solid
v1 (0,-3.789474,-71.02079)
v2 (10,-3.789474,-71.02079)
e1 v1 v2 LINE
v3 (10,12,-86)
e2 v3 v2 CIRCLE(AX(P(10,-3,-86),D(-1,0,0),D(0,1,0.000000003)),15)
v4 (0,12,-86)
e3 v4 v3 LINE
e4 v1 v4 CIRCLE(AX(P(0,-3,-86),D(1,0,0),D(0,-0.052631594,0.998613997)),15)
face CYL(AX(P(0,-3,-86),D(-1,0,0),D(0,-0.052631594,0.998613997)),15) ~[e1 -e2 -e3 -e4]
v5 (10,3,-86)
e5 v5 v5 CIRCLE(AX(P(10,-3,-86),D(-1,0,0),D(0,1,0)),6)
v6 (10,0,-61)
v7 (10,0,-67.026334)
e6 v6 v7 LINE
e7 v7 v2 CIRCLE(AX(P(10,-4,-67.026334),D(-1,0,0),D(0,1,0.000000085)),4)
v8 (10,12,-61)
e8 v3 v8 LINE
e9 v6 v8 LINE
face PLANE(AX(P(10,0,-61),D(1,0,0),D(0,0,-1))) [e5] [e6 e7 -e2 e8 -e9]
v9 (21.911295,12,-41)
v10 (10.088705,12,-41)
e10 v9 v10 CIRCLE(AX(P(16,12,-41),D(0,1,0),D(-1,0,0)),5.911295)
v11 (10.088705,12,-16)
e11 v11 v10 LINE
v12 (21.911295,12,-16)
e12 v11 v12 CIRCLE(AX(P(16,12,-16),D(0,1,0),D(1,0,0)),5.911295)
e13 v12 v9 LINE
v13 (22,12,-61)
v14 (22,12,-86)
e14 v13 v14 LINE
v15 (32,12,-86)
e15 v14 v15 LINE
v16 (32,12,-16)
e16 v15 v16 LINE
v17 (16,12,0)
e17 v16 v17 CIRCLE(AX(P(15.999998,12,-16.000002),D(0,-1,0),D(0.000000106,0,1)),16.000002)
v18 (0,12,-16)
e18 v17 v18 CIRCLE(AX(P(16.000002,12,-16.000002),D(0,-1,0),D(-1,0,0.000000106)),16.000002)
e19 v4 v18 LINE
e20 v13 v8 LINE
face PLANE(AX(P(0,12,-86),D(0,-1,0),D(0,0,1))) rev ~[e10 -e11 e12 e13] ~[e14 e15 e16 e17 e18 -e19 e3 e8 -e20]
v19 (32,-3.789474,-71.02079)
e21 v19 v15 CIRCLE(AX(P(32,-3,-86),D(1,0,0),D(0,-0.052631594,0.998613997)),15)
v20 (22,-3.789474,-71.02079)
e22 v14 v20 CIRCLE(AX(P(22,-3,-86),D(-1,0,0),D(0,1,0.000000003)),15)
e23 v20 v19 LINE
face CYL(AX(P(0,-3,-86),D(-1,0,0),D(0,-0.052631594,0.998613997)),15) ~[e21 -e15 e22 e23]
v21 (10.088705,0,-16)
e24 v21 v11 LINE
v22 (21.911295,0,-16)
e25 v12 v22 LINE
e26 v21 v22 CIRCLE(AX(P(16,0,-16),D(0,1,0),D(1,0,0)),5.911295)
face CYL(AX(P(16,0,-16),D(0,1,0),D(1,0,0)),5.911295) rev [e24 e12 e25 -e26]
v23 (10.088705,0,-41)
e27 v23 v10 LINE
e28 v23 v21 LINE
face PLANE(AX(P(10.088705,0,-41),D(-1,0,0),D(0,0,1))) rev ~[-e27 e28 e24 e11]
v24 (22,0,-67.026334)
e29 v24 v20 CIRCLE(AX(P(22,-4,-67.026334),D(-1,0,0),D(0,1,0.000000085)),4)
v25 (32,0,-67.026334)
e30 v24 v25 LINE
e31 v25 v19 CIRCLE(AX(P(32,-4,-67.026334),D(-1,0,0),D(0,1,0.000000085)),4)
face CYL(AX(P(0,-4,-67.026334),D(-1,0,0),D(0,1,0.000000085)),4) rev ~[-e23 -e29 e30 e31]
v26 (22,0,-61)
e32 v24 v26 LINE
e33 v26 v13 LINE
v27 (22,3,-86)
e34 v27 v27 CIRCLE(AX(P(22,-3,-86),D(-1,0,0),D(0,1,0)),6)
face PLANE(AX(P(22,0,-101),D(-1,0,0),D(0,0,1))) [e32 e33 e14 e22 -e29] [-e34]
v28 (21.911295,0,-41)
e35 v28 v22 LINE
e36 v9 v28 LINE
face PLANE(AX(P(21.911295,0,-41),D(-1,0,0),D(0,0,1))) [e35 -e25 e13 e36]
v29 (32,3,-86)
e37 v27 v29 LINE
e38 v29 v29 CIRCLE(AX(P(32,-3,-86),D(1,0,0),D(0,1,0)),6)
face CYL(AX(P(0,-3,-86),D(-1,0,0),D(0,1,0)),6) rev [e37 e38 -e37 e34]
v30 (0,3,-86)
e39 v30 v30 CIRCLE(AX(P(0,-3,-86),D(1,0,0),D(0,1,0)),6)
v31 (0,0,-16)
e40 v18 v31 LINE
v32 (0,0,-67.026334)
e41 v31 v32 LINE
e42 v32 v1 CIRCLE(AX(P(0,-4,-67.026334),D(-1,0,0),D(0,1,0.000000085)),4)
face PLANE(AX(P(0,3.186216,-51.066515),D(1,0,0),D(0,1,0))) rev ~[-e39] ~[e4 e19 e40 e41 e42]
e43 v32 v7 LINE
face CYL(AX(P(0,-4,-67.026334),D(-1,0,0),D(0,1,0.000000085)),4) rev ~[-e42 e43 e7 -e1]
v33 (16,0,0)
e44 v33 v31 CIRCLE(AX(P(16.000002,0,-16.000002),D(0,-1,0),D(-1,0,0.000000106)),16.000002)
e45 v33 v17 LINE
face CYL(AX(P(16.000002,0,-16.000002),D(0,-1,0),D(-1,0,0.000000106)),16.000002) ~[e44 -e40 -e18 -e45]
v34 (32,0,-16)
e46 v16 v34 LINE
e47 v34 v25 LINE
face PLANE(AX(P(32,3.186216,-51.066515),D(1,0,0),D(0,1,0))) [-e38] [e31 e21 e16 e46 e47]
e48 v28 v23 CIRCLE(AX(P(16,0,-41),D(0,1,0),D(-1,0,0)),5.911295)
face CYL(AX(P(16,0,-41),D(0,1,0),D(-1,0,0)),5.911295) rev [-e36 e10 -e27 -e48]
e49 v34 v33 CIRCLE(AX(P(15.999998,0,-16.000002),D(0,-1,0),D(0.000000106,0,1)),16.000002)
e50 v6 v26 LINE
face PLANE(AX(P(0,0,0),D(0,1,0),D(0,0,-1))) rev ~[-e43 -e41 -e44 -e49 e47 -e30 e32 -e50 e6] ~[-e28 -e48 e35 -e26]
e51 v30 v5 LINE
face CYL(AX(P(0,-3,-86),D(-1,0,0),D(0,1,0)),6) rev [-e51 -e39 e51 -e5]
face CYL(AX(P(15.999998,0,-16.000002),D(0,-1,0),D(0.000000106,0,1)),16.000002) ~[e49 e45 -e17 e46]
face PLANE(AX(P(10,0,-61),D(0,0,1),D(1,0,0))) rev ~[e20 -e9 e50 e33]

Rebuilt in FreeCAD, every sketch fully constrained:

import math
import FreeCAD as App
import Part
import Sketcher
from FreeCAD import Vector
Q = App.Units.Quantity


def add_polygon(sketch, points):
    """Adds a closed chain of lines whose ends are joined by coincident constraints."""
    first, n = sketch.GeometryCount, len(points)
    for a, b in zip(points, points[1:] + points[:1]):
        sketch.addGeometry(Part.LineSegment(App.Vector(*a, 0), App.Vector(*b, 0)), False)
    for i in range(n):
        sketch.addConstraint(Sketcher.Constraint("Coincident", first + i, 2, first + (i + 1) % n, 1))

doc = App.newDocument("Part")
params = doc.addObject("Spreadsheet::Sheet", "Params")
for row, (alias, value) in enumerate([
    ("sketch1_diameter", "12 mm"),
    ("sketch1_radius", "4 mm"),
    ("sketch1_radius2", "15 mm"),
    ("sketch1_width", "12 mm"),
    ("sketch1_height", "86 mm"),
    ("pad1_length", "32 mm"),
    ("sketch2_radius", "16.000002 mm"),
    ("sketch2_width", "12 mm"),
    ("sketch2_height", "40 mm"),
    ("sketch2_height2", "25 mm"),
    ("pocket1_length", "40 mm"),
], start=1):
    params.set(f"A{row}", alias)
    params.set(f"B{row}", "=" + value)
    params.setAlias(f"B{row}", alias)

body = doc.addObject("PartDesign::Body", "Body")

# Sketch on YZ plane
sketch1 = body.newObject("Sketcher::SketchObject", "Sketch")
sketch1.AttachmentSupport = (doc.getObject("YZ_Plane"), [""])
sketch1.MapMode = "FlatFace"
sketch1.addGeometry(Part.LineSegment(Vector(12, 0, 0), Vector(0, 0, 0)), False)
sketch1.addGeometry(Part.LineSegment(Vector(0, 0, 0), Vector(0, -67.026334, 0)), False)
sketch1.addGeometry(Part.ArcOfCircle(Part.Circle(Vector(-4, -67.026334, 0), Vector(0, 0, 1), 4), math.radians(-86.983048), math.radians(0.000005)), False)
sketch1.addGeometry(Part.ArcOfCircle(Part.Circle(Vector(-3, -86, 0), Vector(0, 0, 1), 15), math.radians(93.016962), math.radians(360)), False)
sketch1.addGeometry(Part.LineSegment(Vector(12, -86, 0), Vector(12, 0, 0)), False)
sketch1.addGeometry(Part.Circle(Vector(-3, -86, 0), Vector(0, 0, 1), 6), False)
sketch1.addConstraint(Sketcher.Constraint("Coincident", 0, 2, 1, 1))
sketch1.addConstraint(Sketcher.Constraint("Tangent", 1, 2, 2, 2))
sketch1.addConstraint(Sketcher.Constraint("Tangent", 2, 1, 3, 1))
sketch1.addConstraint(Sketcher.Constraint("Tangent", 3, 2, 4, 1))
sketch1.addConstraint(Sketcher.Constraint("Coincident", 4, 2, 0, 1))
sketch1.addConstraint(Sketcher.Constraint("Horizontal", 0))
sketch1.addConstraint(Sketcher.Constraint("Vertical", 1))
sketch1.addConstraint(Sketcher.Constraint("Vertical", 4))
sketch1.addConstraint(Sketcher.Constraint("Coincident", 0, 2, -1, 1))
sketch1.addConstraint(Sketcher.Constraint("Coincident", 5, 3, 3, 3))
sketch1.addConstraint(Sketcher.Constraint("Diameter", 5, Q("12 mm")))
sketch1.addConstraint(Sketcher.Constraint("Radius", 2, Q("4 mm")))
sketch1.addConstraint(Sketcher.Constraint("Radius", 3, Q("15 mm")))
sketch1.addConstraint(Sketcher.Constraint("DistanceX", 0, 2, 0, 1, Q("12 mm")))
sketch1.addConstraint(Sketcher.Constraint("DistanceY", 4, 1, 4, 2, Q("86 mm")))
sketch1.setExpression("Constraints[10]", "Params.sketch1_diameter")
sketch1.setExpression("Constraints[11]", "Params.sketch1_radius")
sketch1.setExpression("Constraints[12]", "Params.sketch1_radius2")
sketch1.setExpression("Constraints[13]", "Params.sketch1_width")
sketch1.setExpression("Constraints[14]", "Params.sketch1_height")
pad1 = body.newObject("PartDesign::Pad", "Pad")
pad1.Profile = sketch1
pad1.setExpression("Length", "Params.pad1_length")

# Sketch on XZ plane
sketch2 = body.newObject("Sketcher::SketchObject", "Sketch001")
sketch2.AttachmentSupport = (doc.getObject("XZ_Plane"), [""])
sketch2.MapMode = "FlatFace"
add_polygon(sketch2, [(10, -61), (10, -101), (22, -101), (22, -61)])  # lines 0-3
sketch2.addGeometry(Part.ArcOfCircle(Part.Circle(Vector(16, -41, 0), Vector(0, 0, 1), 5.911295), math.radians(180), math.radians(360)), False)  # 4
sketch2.addGeometry(Part.LineSegment(Vector(21.911295, -41, 0), Vector(21.911295, -16, 0)), False)  # 5
sketch2.addGeometry(Part.ArcOfCircle(Part.Circle(Vector(16, -16, 0), Vector(0, 0, 1), 5.911295), math.radians(0), math.radians(180)), False)  # 6
sketch2.addGeometry(Part.LineSegment(Vector(10.088705, -16, 0), Vector(10.088705, -41, 0)), False)  # 7
sketch2.addGeometry(Part.ArcOfCircle(Part.Circle(Vector(15.999998, -16.000002, 0), Vector(0, 0, 1), 16.000002), math.radians(0.000006), math.radians(89.999994)), False)  # 8
sketch2.addGeometry(Part.LineSegment(Vector(32, -16, 0), Vector(32, 0, 0)), False)  # 9
sketch2.addGeometry(Part.LineSegment(Vector(32, 0, 0), Vector(16, 0, 0)), False)  # 10
sketch2.addGeometry(Part.LineSegment(Vector(0, 0, 0), Vector(0, -16, 0)), False)  # 11
sketch2.addGeometry(Part.ArcOfCircle(Part.Circle(Vector(16.000002, -16.000002, 0), Vector(0, 0, 1), 16.000002), math.radians(90.000006), math.radians(179.999994)), False)  # 12
sketch2.addGeometry(Part.LineSegment(Vector(16, 0, 0), Vector(0, 0, 0)), False)  # 13
sketch2.addConstraint(Sketcher.Constraint("Tangent", 4, 2, 5, 1))
sketch2.addConstraint(Sketcher.Constraint("Tangent", 5, 2, 6, 1))
sketch2.addConstraint(Sketcher.Constraint("Tangent", 6, 2, 7, 1))
sketch2.addConstraint(Sketcher.Constraint("Tangent", 7, 2, 4, 1))
sketch2.addConstraint(Sketcher.Constraint("Tangent", 8, 1, 9, 1))
sketch2.addConstraint(Sketcher.Constraint("Coincident", 9, 2, 10, 1))
sketch2.addConstraint(Sketcher.Constraint("Tangent", 10, 2, 8, 2))
sketch2.addConstraint(Sketcher.Constraint("Tangent", 11, 2, 12, 2))
sketch2.addConstraint(Sketcher.Constraint("Tangent", 12, 1, 13, 1))
sketch2.addConstraint(Sketcher.Constraint("Coincident", 13, 2, 11, 1))
sketch2.addConstraint(Sketcher.Constraint("Vertical", 0))
sketch2.addConstraint(Sketcher.Constraint("Horizontal", 1))
sketch2.addConstraint(Sketcher.Constraint("Vertical", 2))
sketch2.addConstraint(Sketcher.Constraint("Horizontal", 3))
sketch2.addConstraint(Sketcher.Constraint("Vertical", 5))
sketch2.addConstraint(Sketcher.Constraint("Vertical", 7))
sketch2.addConstraint(Sketcher.Constraint("Vertical", 9))
sketch2.addConstraint(Sketcher.Constraint("Horizontal", 10))
sketch2.addConstraint(Sketcher.Constraint("Vertical", 11))
sketch2.addConstraint(Sketcher.Constraint("Horizontal", 13))
sketch2.addConstraint(Sketcher.Constraint("Coincident", 13, 2, -1, 1))
sketch2.addConstraint(Sketcher.Constraint("Coincident", 8, 3, 6, 3))
sketch2.addConstraint(Sketcher.Constraint("Coincident", 12, 3, 6, 3))
sketch2.addConstraint(Sketcher.Constraint("Equal", 8, 12))
sketch2.addConstraint(Sketcher.Constraint("Radius", 8, Q("16.000002 mm")))
sketch2.addConstraint(Sketcher.Constraint("DistanceX", 1, 1, 1, 2, Q("12 mm")))
sketch2.addConstraint(Sketcher.Constraint("DistanceY", 0, 2, 0, 1, Q("40 mm")))
sketch2.addConstraint(Sketcher.Constraint("DistanceY", 5, 1, 5, 2, Q("25 mm")))
sketch2.addConstraint(Sketcher.Constraint("DistanceX", -1, 1, 0, 2, Q("10 mm")))
sketch2.addConstraint(Sketcher.Constraint("DistanceY", 0, 2, -1, 1, Q("101 mm")))
sketch2.addConstraint(Sketcher.Constraint("Radius", 4, Q("5.911295 mm")))
sketch2.setExpression("Constraints[28]", "Params.sketch2_radius")
sketch2.setExpression("Constraints[29]", "Params.sketch2_width")
sketch2.setExpression("Constraints[30]", "Params.sketch2_height")
sketch2.setExpression("Constraints[31]", "Params.sketch2_height2")
pocket1 = body.newObject("PartDesign::Pocket", "Pocket")
pocket1.Profile = sketch2
pocket1.setExpression("Length", "Params.pocket1_length")
pocket1.Midplane = True

doc.recompute()
